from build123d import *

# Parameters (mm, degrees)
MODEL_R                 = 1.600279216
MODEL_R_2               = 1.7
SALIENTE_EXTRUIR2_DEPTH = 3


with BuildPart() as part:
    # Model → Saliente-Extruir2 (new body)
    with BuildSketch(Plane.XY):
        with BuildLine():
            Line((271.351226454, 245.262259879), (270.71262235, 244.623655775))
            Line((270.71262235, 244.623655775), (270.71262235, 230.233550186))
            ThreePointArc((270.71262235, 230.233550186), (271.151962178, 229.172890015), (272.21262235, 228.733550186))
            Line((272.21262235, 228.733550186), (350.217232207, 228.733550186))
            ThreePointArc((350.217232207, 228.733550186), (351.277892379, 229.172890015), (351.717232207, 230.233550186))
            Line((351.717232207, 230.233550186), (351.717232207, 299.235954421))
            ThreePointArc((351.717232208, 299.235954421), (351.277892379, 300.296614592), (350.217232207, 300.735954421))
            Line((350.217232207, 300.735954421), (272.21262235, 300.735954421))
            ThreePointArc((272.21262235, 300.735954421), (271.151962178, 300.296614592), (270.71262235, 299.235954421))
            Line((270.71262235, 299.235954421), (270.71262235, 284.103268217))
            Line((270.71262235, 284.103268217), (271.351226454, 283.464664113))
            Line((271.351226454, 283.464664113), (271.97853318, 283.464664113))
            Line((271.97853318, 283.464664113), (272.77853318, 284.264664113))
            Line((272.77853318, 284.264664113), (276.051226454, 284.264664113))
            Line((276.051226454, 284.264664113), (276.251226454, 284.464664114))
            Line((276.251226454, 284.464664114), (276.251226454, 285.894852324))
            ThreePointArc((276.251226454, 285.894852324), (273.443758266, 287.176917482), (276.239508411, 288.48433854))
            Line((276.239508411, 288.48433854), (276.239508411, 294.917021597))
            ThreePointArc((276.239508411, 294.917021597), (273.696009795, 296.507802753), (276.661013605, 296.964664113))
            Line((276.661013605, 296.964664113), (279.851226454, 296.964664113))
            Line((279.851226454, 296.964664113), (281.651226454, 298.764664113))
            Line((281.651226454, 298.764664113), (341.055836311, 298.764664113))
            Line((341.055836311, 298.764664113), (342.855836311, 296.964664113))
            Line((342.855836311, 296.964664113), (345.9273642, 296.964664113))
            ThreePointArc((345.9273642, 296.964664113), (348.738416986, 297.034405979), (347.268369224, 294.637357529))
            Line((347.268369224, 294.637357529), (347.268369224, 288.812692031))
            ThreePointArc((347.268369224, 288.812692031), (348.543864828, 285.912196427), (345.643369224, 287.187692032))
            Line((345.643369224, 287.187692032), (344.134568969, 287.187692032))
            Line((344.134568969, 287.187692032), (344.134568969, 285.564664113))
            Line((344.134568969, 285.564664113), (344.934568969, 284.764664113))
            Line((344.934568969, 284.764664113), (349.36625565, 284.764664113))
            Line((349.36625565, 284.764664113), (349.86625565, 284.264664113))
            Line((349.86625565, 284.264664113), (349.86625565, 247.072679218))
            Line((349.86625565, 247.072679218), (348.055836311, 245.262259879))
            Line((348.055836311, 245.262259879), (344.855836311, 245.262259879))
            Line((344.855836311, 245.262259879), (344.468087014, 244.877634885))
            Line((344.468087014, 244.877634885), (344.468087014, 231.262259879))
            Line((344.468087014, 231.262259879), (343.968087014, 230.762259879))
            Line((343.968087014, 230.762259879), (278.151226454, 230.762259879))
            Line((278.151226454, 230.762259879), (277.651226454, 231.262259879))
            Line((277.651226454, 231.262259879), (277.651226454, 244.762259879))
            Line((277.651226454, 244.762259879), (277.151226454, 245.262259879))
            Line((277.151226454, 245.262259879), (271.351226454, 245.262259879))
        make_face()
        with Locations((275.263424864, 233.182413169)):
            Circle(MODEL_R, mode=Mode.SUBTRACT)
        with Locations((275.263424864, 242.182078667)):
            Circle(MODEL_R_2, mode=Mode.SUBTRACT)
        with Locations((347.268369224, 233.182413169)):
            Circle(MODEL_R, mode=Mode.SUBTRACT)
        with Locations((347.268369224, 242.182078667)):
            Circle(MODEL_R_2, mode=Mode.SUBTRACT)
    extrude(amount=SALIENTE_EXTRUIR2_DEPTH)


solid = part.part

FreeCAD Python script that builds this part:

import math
import FreeCAD as App
import Part
import Sketcher
from FreeCAD import Vector

doc = App.newDocument("Part")
body = doc.addObject("PartDesign::Body", "Body")

sketch1 = body.newObject("Sketcher::SketchObject", "Sketch")
sketch1.AttachmentSupport = (doc.getObject("XY_Plane"), [""])
sketch1.MapMode = "FlatFace"
sketch1.addGeometry([
    Part.LineSegment(Vector(271.35, 245.26, 0), Vector(270.71, 244.62, 0)),
    Part.LineSegment(Vector(270.71, 244.62, 0), Vector(270.71, 230.23, 0)),
    Part.ArcOfCircle(Part.Circle(Vector(272.21, 230.23, 0), Vector(0, 0, 1), 1.5), math.radians(-180), math.radians(-90)),
    Part.LineSegment(Vector(272.21, 228.73, 0), Vector(350.22, 228.73, 0)),
    Part.ArcOfCircle(Part.Circle(Vector(350.22, 230.23, 0), Vector(0, 0, 1), 1.5), math.radians(-90), math.radians(0)),
    Part.LineSegment(Vector(351.72, 230.23, 0), Vector(351.72, 299.24, 0)),
    Part.ArcOfCircle(Part.Circle(Vector(350.22, 299.24, 0), Vector(0, 0, 1), 1.5), math.radians(0), math.radians(90)),
    Part.LineSegment(Vector(350.22, 300.74, 0), Vector(272.21, 300.74, 0)),
    Part.ArcOfCircle(Part.Circle(Vector(272.21, 299.24, 0), Vector(0, 0, 1), 1.5), math.radians(90), math.radians(180)),
    Part.LineSegment(Vector(270.71, 299.24, 0), Vector(270.71, 284.1, 0)),
    Part.LineSegment(Vector(270.71, 284.1, 0), Vector(271.35, 283.46, 0)),
    Part.LineSegment(Vector(271.35, 283.46, 0), Vector(271.98, 283.46, 0)),
    Part.LineSegment(Vector(271.98, 283.46, 0), Vector(272.78, 284.26, 0)),
    Part.LineSegment(Vector(272.78, 284.26, 0), Vector(276.05, 284.26, 0)),
    Part.LineSegment(Vector(276.05, 284.26, 0), Vector(276.25, 284.46, 0)),
    Part.LineSegment(Vector(276.25, 284.46, 0), Vector(276.25, 285.89, 0)),
    Part.ArcOfCircle(Part.Circle(Vector(275.14, 287.18, 0), Vector(0, 0, 1), 1.7), math.radians(50), math.radians(311)),
    Part.LineSegment(Vector(276.24, 288.48, 0), Vector(276.24, 294.92, 0)),
    Part.ArcOfCircle(Part.Circle(Vector(275.26, 296.19, 0), Vector(0, 0, 1), 1.6), math.radians(29), math.radians(308)),
    Part.LineSegment(Vector(276.66, 296.96, 0), Vector(279.85, 296.96, 0)),
    Part.LineSegment(Vector(279.85, 296.96, 0), Vector(281.65, 298.76, 0)),
    Part.LineSegment(Vector(281.65, 298.76, 0), Vector(341.06, 298.76, 0)),
    Part.LineSegment(Vector(341.06, 298.76, 0), Vector(342.86, 296.96, 0)),
    Part.LineSegment(Vector(342.86, 296.96, 0), Vector(345.93, 296.96, 0)),
    Part.ArcOfCircle(Part.Circle(Vector(347.35, 296.24, 0), Vector(0, 0, 1), 1.6), math.radians(-93), math.radians(153)),
    Part.LineSegment(Vector(347.27, 294.64, 0), Vector(347.27, 288.81, 0)),
    Part.ArcOfCircle(Part.Circle(Vector(347.34, 287.11, 0), Vector(0, 0, 1), 1.7), math.radians(178), math.radians(452)),
    Part.LineSegment(Vector(345.64, 287.19, 0), Vector(344.13, 287.19, 0)),
    Part.LineSegment(Vector(344.13, 287.19, 0), Vector(344.13, 285.56, 0)),
    Part.LineSegment(Vector(344.13, 285.56, 0), Vector(344.93, 284.76, 0)),
    Part.LineSegment(Vector(344.93, 284.76, 0), Vector(349.37, 284.76, 0)),
    Part.LineSegment(Vector(349.37, 284.76, 0), Vector(349.87, 284.26, 0)),
    Part.LineSegment(Vector(349.87, 284.26, 0), Vector(349.87, 247.07, 0)),
    Part.LineSegment(Vector(349.87, 247.07, 0), Vector(348.06, 245.26, 0)),
    Part.LineSegment(Vector(348.06, 245.26, 0), Vector(344.86, 245.26, 0)),
    Part.LineSegment(Vector(344.86, 245.26, 0), Vector(344.47, 244.88, 0)),
    Part.LineSegment(Vector(344.47, 244.88, 0), Vector(344.47, 231.26, 0)),
    Part.LineSegment(Vector(344.47, 231.26, 0), Vector(343.97, 230.76, 0)),
    Part.LineSegment(Vector(343.97, 230.76, 0), Vector(278.15, 230.76, 0)),
    Part.LineSegment(Vector(278.15, 230.76, 0), Vector(277.65, 231.26, 0)),
    Part.LineSegment(Vector(277.65, 231.26, 0), Vector(277.65, 244.76, 0)),
    Part.LineSegment(Vector(277.65, 244.76, 0), Vector(277.15, 245.26, 0)),
    Part.LineSegment(Vector(277.15, 245.26, 0), Vector(271.35, 245.26, 0)),
    Part.Circle(Vector(275.26, 233.18, 0), Vector(0, 0, 1), 1.6),
    Part.Circle(Vector(347.27, 233.18, 0), Vector(0, 0, 1), 1.6),
    Part.Circle(Vector(275.26, 242.18, 0), Vector(0, 0, 1), 1.7),
    Part.Circle(Vector(347.27, 242.18, 0), Vector(0, 0, 1), 1.7),
], False)
sketch1.addConstraint([
    Sketcher.Constraint("Coincident", 0, 2, 1, 1),
    Sketcher.Constraint("Tangent", 1, 2, 2, 1),
    Sketcher.Constraint("Tangent", 2, 2, 3, 1),
    Sketcher.Constraint("Tangent", 3, 2, 4, 1),
    Sketcher.Constraint("Tangent", 4, 2, 5, 1),
    Sketcher.Constraint("Tangent", 5, 2, 6, 1),
    Sketcher.Constraint("Tangent", 6, 2, 7, 1),
    Sketcher.Constraint("Tangent", 7, 2, 8, 1),
    Sketcher.Constraint("Tangent", 8, 2, 9, 1),
    Sketcher.Constraint("Coincident", 9, 2, 10, 1),
    Sketcher.Constraint("Coincident", 10, 2, 11, 1),
    Sketcher.Constraint("Coincident", 11, 2, 12, 1),
    Sketcher.Constraint("Coincident", 12, 2, 13, 1),
    Sketcher.Constraint("Coincident", 13, 2, 14, 1),
    Sketcher.Constraint("Coincident", 14, 2, 15, 1),
    Sketcher.Constraint("Coincident", 15, 2, 16, 2),
    Sketcher.Constraint("Coincident", 16, 1, 17, 1),
    Sketcher.Constraint("Coincident", 17, 2, 18, 2),
    Sketcher.Constraint("Coincident", 18, 1, 19, 1),
    Sketcher.Constraint("Coincident", 19, 2, 20, 1),
    Sketcher.Constraint("Coincident", 20, 2, 21, 1),
    Sketcher.Constraint("Coincident", 21, 2, 22, 1),
    Sketcher.Constraint("Coincident", 22, 2, 23, 1),
    Sketcher.Constraint("Coincident", 23, 2, 24, 2),
    Sketcher.Constraint("Coincident", 24, 1, 25, 1),
    Sketcher.Constraint("Coincident", 25, 2, 26, 2),
    Sketcher.Constraint("Coincident", 26, 1, 27, 1),
    Sketcher.Constraint("Coincident", 27, 2, 28, 1),
    Sketcher.Constraint("Coincident", 28, 2, 29, 1),
    Sketcher.Constraint("Coincident", 29, 2, 30, 1),
    Sketcher.Constraint("Coincident", 30, 2, 31, 1),
    Sketcher.Constraint("Coincident", 31, 2, 32, 1),
    Sketcher.Constraint("Coincident", 32, 2, 33, 1),
    Sketcher.Constraint("Coincident", 33, 2, 34, 1),
    Sketcher.Constraint("Coincident", 34, 2, 35, 1),
    Sketcher.Constraint("Coincident", 35, 2, 36, 1),
    Sketcher.Constraint("Coincident", 36, 2, 37, 1),
    Sketcher.Constraint("Coincident", 37, 2, 38, 1),
    Sketcher.Constraint("Coincident", 38, 2, 39, 1),
    Sketcher.Constraint("Coincident", 39, 2, 40, 1),
    Sketcher.Constraint("Coincident", 40, 2, 41, 1),
    Sketcher.Constraint("Coincident", 41, 2, 42, 1),
    Sketcher.Constraint("Coincident", 42, 2, 0, 1),
    Sketcher.Constraint("Vertical", 1),
    Sketcher.Constraint("Horizontal", 3),
    Sketcher.Constraint("Vertical", 5),
    Sketcher.Constraint("Horizontal", 7),
    Sketcher.Constraint("Vertical", 9),
    Sketcher.Constraint("Horizontal", 11),
    Sketcher.Constraint("Horizontal", 13),
    Sketcher.Constraint("Vertical", 15),
    Sketcher.Constraint("Vertical", 17),
    Sketcher.Constraint("Horizontal", 19),
    Sketcher.Constraint("Horizontal", 21),
    Sketcher.Constraint("Horizontal", 23),
    Sketcher.Constraint("Vertical", 25),
    Sketcher.Constraint("Horizontal", 27),
    Sketcher.Constraint("Vertical", 28),
    Sketcher.Constraint("Horizontal", 30),
    Sketcher.Constraint("Vertical", 32),
    Sketcher.Constraint("Horizontal", 34),
    Sketcher.Constraint("Vertical", 36),
    Sketcher.Constraint("Horizontal", 38),
    Sketcher.Constraint("Vertical", 40),
    Sketcher.Constraint("Horizontal", 42),
    Sketcher.Constraint("Equal", 2, 4),
    Sketcher.Constraint("Equal", 4, 6),
    Sketcher.Constraint("Equal", 6, 8),
    Sketcher.Constraint("Equal", 18, 24),
    Sketcher.Constraint("Equal", 16, 26),
    Sketcher.Constraint("Equal", 24, 43),
    Sketcher.Constraint("Equal", 43, 44),
    Sketcher.Constraint("Equal", 26, 45),
    Sketcher.Constraint("Equal", 45, 46),
    Sketcher.Constraint("Perpendicular", 0, 10),
    Sketcher.Constraint("Perpendicular", 10, 12),
    Sketcher.Constraint("Parallel", 12, 14),
    Sketcher.Constraint("Parallel", 14, 20),
    Sketcher.Constraint("Perpendicular", 20, 22),
    Sketcher.Constraint("Parallel", 22, 29),
    Sketcher.Constraint("Parallel", 29, 31),
    Sketcher.Constraint("Perpendicular", 31, 33),
    Sketcher.Constraint("Parallel", 33, 37),
    Sketcher.Constraint("Perpendicular", 37, 39),
    Sketcher.Constraint("Parallel", 39, 41),
    Sketcher.Constraint("Horizontal", 43, 3, 44, 3),
    Sketcher.Constraint("Horizontal", 45, 3, 46, 3),
    Sketcher.Constraint("Horizontal", 19, 2, 22, 2),
    Sketcher.Constraint("Horizontal", 13, 2, 31, 2),
    Sketcher.Constraint("Horizontal", 36, 2, 39, 2),
    Sketcher.Constraint("Horizontal", 34, 2, 41, 2),
    Sketcher.Constraint("Vertical", 2, 3, 8, 3),
    Sketcher.Constraint("Vertical", 18, 3, 43, 3),
    Sketcher.Constraint("Vertical", 43, 3, 45, 3),
    Sketcher.Constraint("Vertical", 44, 3, 46, 3),
    Sketcher.Constraint("Vertical", 46, 3, 24, 1),
    Sketcher.Constraint("Vertical", 10, 2, 42, 2),
    Sketcher.Constraint("Equal", 0, 10),
    Sketcher.Constraint("Equal", 12, 29),
    Sketcher.Constraint("Equal", 31, 37),
    Sketcher.Constraint("Equal", 39, 41),
    Sketcher.Constraint("Diameter", 45, 3.4),
    Sketcher.Constraint("Radius", 2, 1.5),
    Sketcher.Constraint("DistanceX", 34, 2, 34, 1, 3.2),
    Sketcher.Constraint("DistanceX", 42, 2, 42, 1, 5.8),
    Sketcher.Constraint("DistanceY", 40, 1, 40, 2, 13.5),
    Sketcher.Constraint("DistanceY", 11, 2, 14, 2, 1.0),
    Sketcher.Constraint("DistanceY", 38, 2, 40, 2, 14.0),
    Sketcher.Constraint("DistanceX", 11, 2, 12, 2, 0.8),
    Sketcher.Constraint("DistanceX", 10, 2, 13, 2, 4.7),
    Sketcher.Constraint("DistanceX", 19, 2, 20, 2, 1.8),
    Sketcher.Constraint("Diameter", 43, 3.200558),
    Sketcher.Constraint("DistanceX", 27, 2, 27, 1, 1.5088),
    Sketcher.Constraint("DistanceX", 26, 1, 25, 2, 1.625),
    Sketcher.Constraint("DistanceY", 26, 1, 25, 2, 1.625),
    Sketcher.Constraint("DistanceX", 3, 1, 3, 2, 78.00461),
    Sketcher.Constraint("DistanceX", 21, 1, 21, 2, 59.40461),
    Sketcher.Constraint("DistanceX", 38, 2, 38, 1, 65.816861),
    Sketcher.Constraint("DistanceY", 15, 1, 15, 2, 1.430188),
    Sketcher.Constraint("DistanceY", 2, 3, 18, 3, 65.951602),
    Sketcher.Constraint("DistanceY", 46, 3, 26, 3, 44.932199),
    Sketcher.Constraint("DistanceY", 0, 2, 7, 2, 56.112299),
    Sketcher.Constraint("DistanceX", 10, 2, 18, 3, 3.912198),
    Sketcher.Constraint("DistanceX", 18, 3, 19, 2, 4.587802),
    Sketcher.Constraint("DistanceY", 24, 1, 24, 3, 1.5981),
    Sketcher.Constraint("DistanceY", 46, 3, 32, 2, 4.890601),
    Sketcher.Constraint("Distance", 33, 2.56032),
    Sketcher.Constraint("DistanceX", 11, 1, 11, 2, 0.627307),
    Sketcher.Constraint("DistanceX", 19, 1, 19, 2, 3.190213),
    Sketcher.Constraint("DistanceX", 23, 1, 23, 2, 3.071528),
    Sketcher.Constraint("DistanceX", 30, 1, 30, 2, 4.431687),
    Sketcher.Constraint("DistanceY", 1, 2, 1, 1, 14.390106),
    Sketcher.Constraint("DistanceY", 9, 2, 9, 1, 15.132686),
    Sketcher.Constraint("DistanceY", 17, 1, 17, 2, 6.432683),
    Sketcher.Constraint("DistanceY", 25, 2, 25, 1, 5.824665),
    Sketcher.Constraint("DistanceY", 28, 2, 28, 1, 1.623028),
    Sketcher.Constraint("DistanceY", 36, 2, 36, 1, 13.615375),
    Sketcher.Constraint("DistanceY", -1, 1, 2, 3, 230.23355),
    Sketcher.Constraint("DistanceX", -1, 1, 16, 3, 275.143741),
    Sketcher.Constraint("DistanceY", -1, 1, 16, 3, 287.18461),
    Sketcher.Constraint("DistanceY", 43, 3, 18, 3, 63.002739),
])
pad1 = body.newObject("PartDesign::Pad", "Pad")
pad1.Profile = sketch1
pad1.Length = 3

doc.recompute()
